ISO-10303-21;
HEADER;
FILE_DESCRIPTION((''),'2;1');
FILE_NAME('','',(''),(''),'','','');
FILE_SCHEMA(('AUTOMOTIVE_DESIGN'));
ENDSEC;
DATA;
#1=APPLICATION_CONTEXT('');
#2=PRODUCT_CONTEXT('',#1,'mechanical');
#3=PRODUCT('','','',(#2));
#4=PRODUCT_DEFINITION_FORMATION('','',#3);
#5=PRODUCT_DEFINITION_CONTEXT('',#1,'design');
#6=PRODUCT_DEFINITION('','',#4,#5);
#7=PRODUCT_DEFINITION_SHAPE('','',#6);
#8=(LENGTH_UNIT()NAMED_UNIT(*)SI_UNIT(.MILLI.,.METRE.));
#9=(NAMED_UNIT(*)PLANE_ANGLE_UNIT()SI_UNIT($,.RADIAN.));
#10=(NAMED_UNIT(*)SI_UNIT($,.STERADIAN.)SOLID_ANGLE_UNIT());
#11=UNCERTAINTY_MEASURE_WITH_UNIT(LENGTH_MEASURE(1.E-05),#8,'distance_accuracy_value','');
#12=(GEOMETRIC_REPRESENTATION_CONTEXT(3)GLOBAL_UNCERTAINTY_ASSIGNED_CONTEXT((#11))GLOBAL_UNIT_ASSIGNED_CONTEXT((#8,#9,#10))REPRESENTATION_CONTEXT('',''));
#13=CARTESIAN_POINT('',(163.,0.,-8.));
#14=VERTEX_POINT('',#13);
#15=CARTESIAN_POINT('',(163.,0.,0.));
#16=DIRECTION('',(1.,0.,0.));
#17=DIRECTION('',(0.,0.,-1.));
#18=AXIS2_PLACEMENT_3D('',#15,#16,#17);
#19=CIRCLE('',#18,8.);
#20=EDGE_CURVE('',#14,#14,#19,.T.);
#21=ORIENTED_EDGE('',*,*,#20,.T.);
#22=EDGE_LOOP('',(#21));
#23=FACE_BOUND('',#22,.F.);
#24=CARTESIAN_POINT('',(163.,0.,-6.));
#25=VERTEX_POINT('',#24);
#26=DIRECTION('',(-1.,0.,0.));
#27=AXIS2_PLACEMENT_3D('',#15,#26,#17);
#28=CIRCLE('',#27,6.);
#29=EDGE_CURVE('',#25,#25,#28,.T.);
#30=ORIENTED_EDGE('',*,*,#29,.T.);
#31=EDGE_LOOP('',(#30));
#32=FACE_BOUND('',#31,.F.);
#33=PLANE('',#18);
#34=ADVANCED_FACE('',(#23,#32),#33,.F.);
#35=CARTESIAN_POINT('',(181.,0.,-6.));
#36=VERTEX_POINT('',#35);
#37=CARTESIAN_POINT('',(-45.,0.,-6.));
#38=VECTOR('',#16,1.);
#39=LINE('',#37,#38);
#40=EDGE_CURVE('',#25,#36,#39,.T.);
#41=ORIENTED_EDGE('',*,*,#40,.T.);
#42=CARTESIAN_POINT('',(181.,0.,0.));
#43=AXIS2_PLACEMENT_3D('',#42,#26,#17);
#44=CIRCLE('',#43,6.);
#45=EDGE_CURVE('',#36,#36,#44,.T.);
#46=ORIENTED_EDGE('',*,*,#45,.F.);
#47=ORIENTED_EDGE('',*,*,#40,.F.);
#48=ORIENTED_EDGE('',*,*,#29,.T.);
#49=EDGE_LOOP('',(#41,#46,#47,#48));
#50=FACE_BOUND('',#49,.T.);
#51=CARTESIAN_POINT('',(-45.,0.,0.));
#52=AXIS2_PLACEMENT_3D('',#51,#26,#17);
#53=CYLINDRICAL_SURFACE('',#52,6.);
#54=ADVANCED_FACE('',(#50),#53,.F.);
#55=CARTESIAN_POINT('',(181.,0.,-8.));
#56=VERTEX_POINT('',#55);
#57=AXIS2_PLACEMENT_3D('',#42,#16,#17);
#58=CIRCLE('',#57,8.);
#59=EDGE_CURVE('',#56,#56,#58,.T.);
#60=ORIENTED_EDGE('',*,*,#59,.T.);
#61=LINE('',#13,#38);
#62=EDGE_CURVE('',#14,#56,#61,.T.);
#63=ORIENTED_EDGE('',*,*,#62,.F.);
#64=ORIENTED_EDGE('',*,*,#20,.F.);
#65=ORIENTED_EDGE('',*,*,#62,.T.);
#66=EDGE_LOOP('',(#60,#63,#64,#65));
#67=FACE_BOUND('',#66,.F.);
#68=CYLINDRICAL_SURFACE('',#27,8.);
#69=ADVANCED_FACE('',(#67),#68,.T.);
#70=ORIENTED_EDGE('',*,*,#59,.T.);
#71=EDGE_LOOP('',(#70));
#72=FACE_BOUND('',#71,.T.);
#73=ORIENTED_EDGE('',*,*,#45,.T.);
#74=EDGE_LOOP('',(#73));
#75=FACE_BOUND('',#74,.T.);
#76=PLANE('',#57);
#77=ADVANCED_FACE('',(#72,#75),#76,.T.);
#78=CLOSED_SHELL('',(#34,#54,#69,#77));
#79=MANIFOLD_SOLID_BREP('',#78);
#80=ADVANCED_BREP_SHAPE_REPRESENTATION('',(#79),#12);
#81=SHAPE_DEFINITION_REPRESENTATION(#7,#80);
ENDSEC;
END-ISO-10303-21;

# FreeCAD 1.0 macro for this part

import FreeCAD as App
import Part
import Sketcher

doc = App.newDocument("Part")
body = doc.addObject("PartDesign::Body", "Body")

sketch1 = doc.addObject("Sketcher::SketchObject", "Sketch")
body.addObject(sketch1)
sketch1.AttachmentSupport = (doc.XY_Plane, [""])
sketch1.MapMode = "FlatFace"
sketch1.addGeometry(Part.Circle(App.Vector(0, 0, 0), App.Vector(0, 0, 1), 6), False)
sketch1.addConstraint([
    Sketcher.Constraint("Coincident", 0, 3, -1, 1),
    Sketcher.Constraint("Diameter", 0, 12.0),
])
pad1 = doc.addObject("PartDesign::Pad", "Pad")
body.addObject(pad1)
pad1.Profile = sketch1
pad1.Length = 236
body2 = doc.addObject("PartDesign::Body", "Body001")
doc.recompute()

body.Placement = App.Placement(App.Vector(0, 0, 0), App.Rotation(App.Vector(0, 1, 0), 90))
boolean = doc.addObject("PartDesign::Boolean", "Boolean")
body2.addObject(boolean)
boolean.Type = "Fuse"
boolean.addObjects([body])
body3 = doc.addObject("PartDesign::Body", "Body002")
doc.recompute()

body2.Placement = App.Placement(App.Vector(-45, 0, 0), App.Rotation(App.Vector(0, 0, 1), 0))
boolean2 = doc.addObject("PartDesign::Boolean", "Boolean001")
body3.addObject(boolean2)
boolean2.Type = "Fuse"
boolean2.addObjects([body2])
body4 = doc.addObject("PartDesign::Body", "Body003")

sketch2 = doc.addObject("Sketcher::SketchObject", "Sketch001")
body4.addObject(sketch2)
sketch2.AttachmentSupport = (doc.getObject("XY_Plane003"), [""])
sketch2.MapMode = "FlatFace"
sketch2.addGeometry(Part.Circle(App.Vector(0, 0, 0), App.Vector(0, 0, 1), 8), False)
sketch2.addConstraint([
    Sketcher.Constraint("Coincident", 0, 3, -1, 1),
    Sketcher.Constraint("Diameter", 0, 16.0),
])
pad2 = doc.addObject("PartDesign::Pad", "Pad001")
body4.addObject(pad2)
pad2.Profile = sketch2
pad2.Length = 18
body5 = doc.addObject("PartDesign::Body", "Body004")
doc.recompute()

body4.Placement = App.Placement(App.Vector(0, 0, 0), App.Rotation(App.Vector(0, 1, 0), 90))
boolean3 = doc.addObject("PartDesign::Boolean", "Boolean002")
body5.addObject(boolean3)
boolean3.Type = "Fuse"
boolean3.addObjects([body4])
body6 = doc.addObject("PartDesign::Body", "Body005")
doc.recompute()

body5.Placement = App.Placement(App.Vector(163, 0, 0), App.Rotation(App.Vector(0, 0, 1), 0))
boolean4 = doc.addObject("PartDesign::Boolean", "Boolean003")
body6.addObject(boolean4)
boolean4.Type = "Fuse"
boolean4.addObjects([body5])
doc.recompute()

boolean5 = doc.addObject("PartDesign::Boolean", "Boolean004")
body6.addObject(boolean5)
boolean5.Type = "Cut"
boolean5.addObjects([body3])

doc.recompute()
